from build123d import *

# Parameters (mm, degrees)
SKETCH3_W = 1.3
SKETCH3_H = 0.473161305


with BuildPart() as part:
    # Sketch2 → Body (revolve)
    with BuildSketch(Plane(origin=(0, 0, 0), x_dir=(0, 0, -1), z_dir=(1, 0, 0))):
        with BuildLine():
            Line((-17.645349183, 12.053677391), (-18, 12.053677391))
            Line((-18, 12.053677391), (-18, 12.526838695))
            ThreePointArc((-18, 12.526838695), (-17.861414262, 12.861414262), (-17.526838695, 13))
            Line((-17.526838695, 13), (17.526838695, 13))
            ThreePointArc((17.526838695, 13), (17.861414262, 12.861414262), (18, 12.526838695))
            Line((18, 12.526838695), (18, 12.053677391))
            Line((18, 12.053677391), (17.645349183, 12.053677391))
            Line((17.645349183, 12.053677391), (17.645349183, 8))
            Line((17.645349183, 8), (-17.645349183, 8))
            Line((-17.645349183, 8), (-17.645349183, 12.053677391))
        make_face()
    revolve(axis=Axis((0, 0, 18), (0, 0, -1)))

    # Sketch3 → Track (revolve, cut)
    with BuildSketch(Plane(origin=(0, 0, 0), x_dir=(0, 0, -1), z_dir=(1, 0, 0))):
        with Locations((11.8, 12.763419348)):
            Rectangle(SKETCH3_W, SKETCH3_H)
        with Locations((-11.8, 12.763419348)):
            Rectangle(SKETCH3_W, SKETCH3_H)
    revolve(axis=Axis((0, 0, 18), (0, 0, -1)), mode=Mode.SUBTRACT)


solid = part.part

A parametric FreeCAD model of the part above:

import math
import FreeCAD as App
import Part
import Sketcher
from FreeCAD import Vector
Q = App.Units.Quantity


def add_polygon(sketch, points):
    """Adds a closed chain of lines whose ends are joined by coincident constraints."""
    first, n = sketch.GeometryCount, len(points)
    for a, b in zip(points, points[1:] + points[:1]):
        sketch.addGeometry(Part.LineSegment(App.Vector(*a, 0), App.Vector(*b, 0)), False)
    for i in range(n):
        sketch.addConstraint(Sketcher.Constraint("Coincident", first + i, 2, first + (i + 1) % n, 1))

doc = App.newDocument("Part")
body = doc.addObject("PartDesign::Body", "Body")

# Sketch on YZ plane
sketch1 = doc.addObject("Sketcher::SketchObject", "Sketch")
body.addObject(sketch1)
sketch1.AttachmentSupport = (doc.YZ_Plane, [""])
sketch1.MapMode = "FlatFace"
sketch1.addGeometry([
    Part.LineSegment(Vector(12.053677, 18, 0), Vector(12.053677, 17.645349, 0)),  # 0
    Part.LineSegment(Vector(12.053677, 17.645349, 0), Vector(8, 17.645349, 0)),  # 1
    Part.LineSegment(Vector(8, 17.645349, 0), Vector(8, -17.645349, 0)),  # 2
    Part.LineSegment(Vector(8, -17.645349, 0), Vector(12.053677, -17.645349, 0)),  # 3
    Part.LineSegment(Vector(12.053677, -17.645349, 0), Vector(12.053677, -18, 0)),  # 4
    Part.LineSegment(Vector(12.053677, -18, 0), Vector(12.526839, -18, 0)),  # 5
    Part.ArcOfCircle(Part.Circle(Vector(12.526839, -17.526839, 0), Vector(0, 0, 1), 0.473161), math.radians(-90), math.radians(0)),  # 6
    Part.LineSegment(Vector(13, -17.526839, 0), Vector(13, 17.526839, 0)),  # 7
    Part.ArcOfCircle(Part.Circle(Vector(12.526839, 17.526839, 0), Vector(0, 0, 1), 0.473161), math.radians(0), math.radians(90)),  # 8
    Part.LineSegment(Vector(12.526839, 18, 0), Vector(12.053677, 18, 0)),  # 9
], False)
sketch1.addConstraint([
    Sketcher.Constraint("Coincident", 0, 2, 1, 1),
    Sketcher.Constraint("Coincident", 1, 2, 2, 1),
    Sketcher.Constraint("Coincident", 2, 2, 3, 1),
    Sketcher.Constraint("Coincident", 3, 2, 4, 1),
    Sketcher.Constraint("Coincident", 4, 2, 5, 1),
    Sketcher.Constraint("Tangent", 5, 2, 6, 1),
    Sketcher.Constraint("Tangent", 6, 2, 7, 1),
    Sketcher.Constraint("Tangent", 7, 2, 8, 1),
    Sketcher.Constraint("Tangent", 8, 2, 9, 1),
    Sketcher.Constraint("Coincident", 9, 2, 0, 1),
    Sketcher.Constraint("Vertical", 0),
    Sketcher.Constraint("Horizontal", 1),
    Sketcher.Constraint("Vertical", 2),
    Sketcher.Constraint("Horizontal", 3),
    Sketcher.Constraint("Vertical", 4),
    Sketcher.Constraint("Horizontal", 5),
    Sketcher.Constraint("Vertical", 7),
    Sketcher.Constraint("Horizontal", 9),
    Sketcher.Constraint("Equal", 6, 8),
    Sketcher.Constraint("Symmetric", 0, 2, 3, 2, -1),
    Sketcher.Constraint("Equal", 0, 4),
    Sketcher.Constraint("DistanceX", -1, 1, 1, 2, Q("8 mm")),
    Sketcher.Constraint("DistanceY", 4, 2, -1, 1, Q("18 mm")),
    Sketcher.Constraint("DistanceX", -1, 1, 6, 2, Q("13 mm")),
    Sketcher.Constraint("Radius", 6, Q("0.473161 mm")),
    Sketcher.Constraint("DistanceY", 2, 2, 2, 1, Q("35.290698 mm")),
    Sketcher.Constraint("DistanceX", 5, 1, 5, 2, Q("0.473161 mm")),
])
revolution = doc.addObject("PartDesign::Revolution", "Revolution")
body.addObject(revolution)
revolution.Profile = sketch1
revolution.ReferenceAxis = (sketch1, ["V_Axis"])
revolution.Angle = 360

# Sketch on YZ plane
sketch2 = doc.addObject("Sketcher::SketchObject", "Sketch001")
body.addObject(sketch2)
sketch2.AttachmentSupport = (doc.YZ_Plane, [""])
sketch2.MapMode = "FlatFace"
add_polygon(sketch2, [(13, -11.15), (12.526839, -11.15), (12.526839, -12.45), (13, -12.45)])  # lines 0-3
add_polygon(sketch2, [(13, 12.45), (12.526839, 12.45), (12.526839, 11.15), (13, 11.15)])  # lines 4-7
sketch2.addConstraint([
    Sketcher.Constraint("Horizontal", 0),
    Sketcher.Constraint("Vertical", 1),
    Sketcher.Constraint("Horizontal", 2),
    Sketcher.Constraint("Vertical", 3),
    Sketcher.Constraint("Horizontal", 4),
    Sketcher.Constraint("Vertical", 5),
    Sketcher.Constraint("Horizontal", 6),
    Sketcher.Constraint("Vertical", 7),
    Sketcher.Constraint("Symmetric", 1, 2, 4, 2, -1),
    Sketcher.Constraint("Symmetric", 3, 2, 6, 2, -1),
    Sketcher.Constraint("DistanceY", 1, 2, 1, 1, Q("1.3 mm")),
    Sketcher.Constraint("DistanceX", -1, 1, 2, 2, Q("13 mm")),
    Sketcher.Constraint("DistanceY", 0, 2, 4, 2, Q("23.6 mm")),
    Sketcher.Constraint("DistanceX", 0, 2, 0, 1, Q("0.473161 mm")),
])
groove = doc.addObject("PartDesign::Groove", "Groove")
body.addObject(groove)
groove.Profile = sketch2
groove.ReferenceAxis = (sketch2, ["V_Axis"])
groove.Angle = 360

doc.recompute()
